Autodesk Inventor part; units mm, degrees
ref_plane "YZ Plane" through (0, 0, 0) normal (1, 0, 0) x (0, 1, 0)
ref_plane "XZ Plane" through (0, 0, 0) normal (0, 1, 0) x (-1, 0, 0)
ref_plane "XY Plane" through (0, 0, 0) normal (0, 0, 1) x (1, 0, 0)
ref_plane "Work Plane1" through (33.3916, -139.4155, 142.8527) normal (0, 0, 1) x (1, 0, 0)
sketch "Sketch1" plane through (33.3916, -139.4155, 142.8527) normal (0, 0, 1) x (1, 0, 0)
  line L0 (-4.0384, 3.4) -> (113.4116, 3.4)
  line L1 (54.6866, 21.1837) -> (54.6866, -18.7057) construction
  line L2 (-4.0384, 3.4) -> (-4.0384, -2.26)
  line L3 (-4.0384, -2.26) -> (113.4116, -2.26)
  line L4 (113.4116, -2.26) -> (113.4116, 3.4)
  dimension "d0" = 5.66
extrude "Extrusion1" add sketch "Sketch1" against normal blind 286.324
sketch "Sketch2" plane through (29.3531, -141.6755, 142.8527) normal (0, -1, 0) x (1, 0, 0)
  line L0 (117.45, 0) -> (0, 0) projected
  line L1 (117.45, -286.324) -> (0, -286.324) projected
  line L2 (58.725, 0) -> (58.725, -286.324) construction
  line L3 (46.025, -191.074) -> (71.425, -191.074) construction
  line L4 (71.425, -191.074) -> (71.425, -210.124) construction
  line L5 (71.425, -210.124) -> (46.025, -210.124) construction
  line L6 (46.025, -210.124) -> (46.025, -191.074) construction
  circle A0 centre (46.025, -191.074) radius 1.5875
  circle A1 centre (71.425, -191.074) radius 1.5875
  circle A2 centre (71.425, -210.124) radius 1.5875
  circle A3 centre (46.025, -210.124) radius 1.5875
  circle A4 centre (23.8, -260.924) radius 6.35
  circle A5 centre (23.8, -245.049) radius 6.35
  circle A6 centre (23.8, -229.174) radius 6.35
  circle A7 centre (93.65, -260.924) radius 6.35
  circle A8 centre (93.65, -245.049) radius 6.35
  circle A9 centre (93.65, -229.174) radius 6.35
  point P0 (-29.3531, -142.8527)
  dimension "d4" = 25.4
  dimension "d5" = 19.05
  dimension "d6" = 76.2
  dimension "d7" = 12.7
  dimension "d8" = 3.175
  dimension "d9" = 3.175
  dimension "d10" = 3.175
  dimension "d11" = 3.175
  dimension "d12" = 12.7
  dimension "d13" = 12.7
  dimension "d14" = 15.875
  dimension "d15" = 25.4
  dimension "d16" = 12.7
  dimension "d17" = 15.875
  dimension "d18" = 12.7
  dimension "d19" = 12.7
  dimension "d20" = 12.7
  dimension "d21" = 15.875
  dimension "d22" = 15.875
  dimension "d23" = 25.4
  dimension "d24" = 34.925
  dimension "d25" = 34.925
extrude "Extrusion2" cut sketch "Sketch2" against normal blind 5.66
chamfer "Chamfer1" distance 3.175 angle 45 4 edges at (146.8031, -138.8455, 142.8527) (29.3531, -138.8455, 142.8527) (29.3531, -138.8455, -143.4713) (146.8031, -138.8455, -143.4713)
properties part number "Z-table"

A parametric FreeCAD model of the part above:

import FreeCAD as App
import Part
import Sketcher
from FreeCAD import Vector
Q = App.Units.Quantity


def edges_at(feature, points):
    """Names of the edges that pass closest to the given points."""
    edges = feature.Shape.Edges
    near = lambda p: min(range(len(edges)), key=lambda i: edges[i].distToShape(Part.Vertex(*p))[0])
    return sorted({f"Edge{near(p) + 1}" for p in points})

doc = App.newDocument("Part")
body = doc.addObject("PartDesign::Body", "Body")

sketch1 = doc.addObject("Sketcher::SketchObject", "Sketch")
body.addObject(sketch1)
sketch1.AttachmentSupport = (doc.XY_Plane, [""])
sketch1.MapMode = "FlatFace"
sketch1.AttachmentOffset = App.Placement(Vector(0, 0, 142.8527), App.Rotation())
sketch1.addGeometry([
    Part.LineSegment(Vector(147, -136, 0), Vector(29, -136, 0)),
    Part.LineSegment(Vector(29, -136, 0), Vector(29, -142, 0)),
    Part.LineSegment(Vector(29, -142, 0), Vector(147, -142, 0)),
    Part.LineSegment(Vector(147, -142, 0), Vector(147, -136, 0)),
], False)
sketch1.addConstraint([
    Sketcher.Constraint("Coincident", 0, 2, 1, 1),
    Sketcher.Constraint("Coincident", 1, 2, 2, 1),
    Sketcher.Constraint("Coincident", 2, 2, 3, 1),
    Sketcher.Constraint("Coincident", 3, 2, 0, 1),
    Sketcher.Constraint("Horizontal", 0),
    Sketcher.Constraint("Vertical", 1),
    Sketcher.Constraint("Horizontal", 2),
    Sketcher.Constraint("Vertical", 3),
    Sketcher.Constraint("DistanceY", 1, 2, 1, 1, 5.66),
    Sketcher.Constraint("DistanceX", 0, 2, 0, 1, 117.45),
    Sketcher.Constraint("DistanceX", -1, 1, 0, 2, 29.3532),
    Sketcher.Constraint("DistanceY", 0, 2, -1, 1, 136.0155),
])
pad1 = doc.addObject("PartDesign::Pad", "Pad")
body.addObject(pad1)
pad1.Profile = sketch1
pad1.Length = Q("11.2725984 in")
pad1.Reversed = True

sketch2 = doc.addObject("Sketcher::SketchObject", "Sketch001")
body.addObject(sketch2)
sketch2.AttachmentSupport = (doc.XZ_Plane, [""])
sketch2.MapMode = "FlatFace"
sketch2.AttachmentOffset = App.Placement(Vector(0, 0, 141.6755), App.Rotation())
sketch2.addGeometry([
    Part.Circle(Vector(75.4, -48.2, 0), Vector(0, 0, 1), 1.6),
    Part.Circle(Vector(100.8, -48.2, 0), Vector(0, 0, 1), 1.6),
    Part.Circle(Vector(100.8, -67.3, 0), Vector(0, 0, 1), 1.6),
    Part.Circle(Vector(75.4, -67.3, 0), Vector(0, 0, 1), 1.6),
    Part.Circle(Vector(53.2, -118.1, 0), Vector(0, 0, 1), 6.3),
    Part.Circle(Vector(53.2, -102.2, 0), Vector(0, 0, 1), 6.3),
    Part.Circle(Vector(53.2, -86.3, 0), Vector(0, 0, 1), 6.3),
    Part.Circle(Vector(123, -118.1, 0), Vector(0, 0, 1), 6.3),
    Part.Circle(Vector(123, -102.2, 0), Vector(0, 0, 1), 6.3),
    Part.Circle(Vector(123, -86.3, 0), Vector(0, 0, 1), 6.3),
], False)
sketch2.addConstraint([
    Sketcher.Constraint("Equal", 0, 1),
    Sketcher.Constraint("Equal", 1, 2),
    Sketcher.Constraint("Equal", 2, 3),
    Sketcher.Constraint("Equal", 4, 5),
    Sketcher.Constraint("Equal", 5, 6),
    Sketcher.Constraint("Equal", 6, 7),
    Sketcher.Constraint("Equal", 7, 8),
    Sketcher.Constraint("Equal", 8, 9),
    Sketcher.Constraint("Horizontal", 0, 3, 1, 3),
    Sketcher.Constraint("Horizontal", 2, 3, 3, 3),
    Sketcher.Constraint("Horizontal", 4, 3, 7, 3),
    Sketcher.Constraint("Horizontal", 5, 3, 8, 3),
    Sketcher.Constraint("Horizontal", 6, 3, 9, 3),
    Sketcher.Constraint("Vertical", 1, 3, 2, 3),
    Sketcher.Constraint("Vertical", 0, 3, 3, 3),
    Sketcher.Constraint("Vertical", 4, 3, 5, 3),
    Sketcher.Constraint("Vertical", 5, 3, 6, 3),
    Sketcher.Constraint("Vertical", 7, 3, 8, 3),
    Sketcher.Constraint("Vertical", 8, 3, 9, 3),
    Sketcher.Constraint("Diameter", 4, Q("0.5 in")),
    Sketcher.Constraint("Diameter", 0, Q("0.125 in")),
    Sketcher.Constraint("DistanceX", 0, 3, 1, 3, Q("1 in")),
    Sketcher.Constraint("DistanceY", 2, 3, 1, 3, Q("0.75 in")),
    Sketcher.Constraint("DistanceY", 6, 3, 3, 3, Q("0.75 in")),
    Sketcher.Constraint("DistanceY", 4, 3, 3, 3, Q("2 in")),
    Sketcher.Constraint("DistanceY", 4, 3, 5, 3, Q("0.625 in")),
    Sketcher.Constraint("DistanceX", 4, 3, 7, 3, Q("2.75 in")),
    Sketcher.Constraint("DistanceX", 4, 3, 3, 3, Q("0.875 in")),
    Sketcher.Constraint("DistanceX", -1, 1, 0, 3, 75.378),
    Sketcher.Constraint("DistanceY", 0, 3, -1, 1, 48.2213),
])
pocket1 = doc.addObject("PartDesign::Pocket", "Pocket")
body.addObject(pocket1)
pocket1.Profile = sketch2
pocket1.Length = 5.66
doc.recompute()

chamfer = doc.addObject("PartDesign::Chamfer", "Chamfer")
body.addObject(chamfer)
chamfer.Base = (pocket1, edges_at(pocket1, [
    (146.803, -138.845, 142.853),
    (29.353, -138.845, 142.853),
    (29.353, -138.845, -143.471),
    (146.803, -138.845, -143.471),
]))
chamfer.Size = Q("0.125 in")

doc.recompute()
